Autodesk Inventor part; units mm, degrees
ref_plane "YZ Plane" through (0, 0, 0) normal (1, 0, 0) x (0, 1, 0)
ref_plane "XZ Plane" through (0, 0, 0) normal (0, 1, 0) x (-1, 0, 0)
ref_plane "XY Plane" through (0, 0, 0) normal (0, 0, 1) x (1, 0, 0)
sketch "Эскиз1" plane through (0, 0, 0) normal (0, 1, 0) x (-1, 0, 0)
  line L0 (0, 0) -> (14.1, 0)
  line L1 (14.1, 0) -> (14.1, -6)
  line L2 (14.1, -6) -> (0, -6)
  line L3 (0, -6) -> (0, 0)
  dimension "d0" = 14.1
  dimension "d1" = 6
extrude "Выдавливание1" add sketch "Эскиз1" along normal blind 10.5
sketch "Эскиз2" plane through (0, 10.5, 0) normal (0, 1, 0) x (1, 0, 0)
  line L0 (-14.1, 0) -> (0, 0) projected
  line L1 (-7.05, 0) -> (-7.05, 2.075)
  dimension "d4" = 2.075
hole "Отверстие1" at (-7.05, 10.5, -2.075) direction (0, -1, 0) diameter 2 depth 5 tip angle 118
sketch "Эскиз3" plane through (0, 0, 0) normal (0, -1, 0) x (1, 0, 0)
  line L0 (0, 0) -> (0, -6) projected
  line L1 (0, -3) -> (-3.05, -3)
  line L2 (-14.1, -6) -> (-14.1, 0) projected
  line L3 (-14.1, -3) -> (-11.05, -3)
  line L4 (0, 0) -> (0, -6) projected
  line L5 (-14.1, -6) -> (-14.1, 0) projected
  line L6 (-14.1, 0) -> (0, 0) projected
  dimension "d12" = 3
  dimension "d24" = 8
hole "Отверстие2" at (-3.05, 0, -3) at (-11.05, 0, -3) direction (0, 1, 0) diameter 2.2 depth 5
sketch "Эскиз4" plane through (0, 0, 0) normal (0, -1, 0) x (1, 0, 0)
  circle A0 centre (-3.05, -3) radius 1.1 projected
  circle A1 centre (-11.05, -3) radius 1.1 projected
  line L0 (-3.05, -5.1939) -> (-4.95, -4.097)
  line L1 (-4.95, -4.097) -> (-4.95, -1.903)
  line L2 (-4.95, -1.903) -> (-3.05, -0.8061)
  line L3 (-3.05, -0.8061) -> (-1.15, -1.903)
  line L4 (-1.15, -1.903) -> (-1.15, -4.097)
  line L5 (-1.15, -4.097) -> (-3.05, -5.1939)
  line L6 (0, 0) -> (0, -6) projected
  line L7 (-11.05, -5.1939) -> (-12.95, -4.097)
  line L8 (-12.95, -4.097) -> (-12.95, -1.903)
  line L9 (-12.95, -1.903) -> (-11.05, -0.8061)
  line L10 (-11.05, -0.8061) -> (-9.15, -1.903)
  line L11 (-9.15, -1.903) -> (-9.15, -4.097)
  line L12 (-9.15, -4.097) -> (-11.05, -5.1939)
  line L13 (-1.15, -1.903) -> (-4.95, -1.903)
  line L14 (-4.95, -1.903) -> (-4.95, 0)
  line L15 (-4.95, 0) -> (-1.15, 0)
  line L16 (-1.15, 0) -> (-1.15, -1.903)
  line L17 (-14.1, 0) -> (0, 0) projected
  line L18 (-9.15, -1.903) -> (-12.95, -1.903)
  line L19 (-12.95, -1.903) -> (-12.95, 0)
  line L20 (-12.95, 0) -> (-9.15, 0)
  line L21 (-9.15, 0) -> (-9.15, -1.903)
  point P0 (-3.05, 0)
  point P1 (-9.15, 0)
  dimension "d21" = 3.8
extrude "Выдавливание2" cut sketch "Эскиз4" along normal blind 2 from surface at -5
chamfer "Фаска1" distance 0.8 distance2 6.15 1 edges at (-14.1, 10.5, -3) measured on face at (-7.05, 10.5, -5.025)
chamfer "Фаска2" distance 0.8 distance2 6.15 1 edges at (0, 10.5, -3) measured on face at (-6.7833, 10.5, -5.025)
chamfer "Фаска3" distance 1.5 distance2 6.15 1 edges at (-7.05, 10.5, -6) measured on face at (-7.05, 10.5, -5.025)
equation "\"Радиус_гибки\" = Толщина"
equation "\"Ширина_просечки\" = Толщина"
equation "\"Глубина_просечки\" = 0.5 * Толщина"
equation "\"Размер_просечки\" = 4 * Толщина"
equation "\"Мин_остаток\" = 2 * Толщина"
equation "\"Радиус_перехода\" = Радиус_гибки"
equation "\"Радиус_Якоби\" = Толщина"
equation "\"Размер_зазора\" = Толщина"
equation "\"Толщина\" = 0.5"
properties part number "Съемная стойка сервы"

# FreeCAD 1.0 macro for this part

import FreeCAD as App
import Part
import Sketcher

V = App.Vector


def edges_at(feature, points):
    """Names of the edges that pass closest to the given points."""
    edges = feature.Shape.Edges
    near = lambda p: min(range(len(edges)), key=lambda i: edges[i].distToShape(Part.Vertex(*p))[0])
    return sorted({f"Edge{near(p) + 1}" for p in points})


def add_polygon(sketch, points):
    """Adds a closed chain of lines whose ends are joined by coincident constraints."""
    first, n = sketch.GeometryCount, len(points)
    for a, b in zip(points, points[1:] + points[:1]):
        sketch.addGeometry(Part.LineSegment(App.Vector(*a, 0), App.Vector(*b, 0)), False)
    for i in range(n):
        sketch.addConstraint(Sketcher.Constraint("Coincident", first + i, 2, first + (i + 1) % n, 1))

doc = App.newDocument("Part")
body = doc.addObject("PartDesign::Body", "Body")

sketch1 = doc.addObject("Sketcher::SketchObject", "Sketch")
body.addObject(sketch1)
sketch1.AttachmentSupport = (doc.XZ_Plane, [""])
sketch1.MapMode = "FlatFace"
add_polygon(sketch1, [(-14, 0), (0, 0), (0, -6), (-14, -6)])
sketch1.addConstraint([
    Sketcher.Constraint("Horizontal", 0),
    Sketcher.Constraint("Vertical", 1),
    Sketcher.Constraint("Horizontal", 2),
    Sketcher.Constraint("Vertical", 3),
    Sketcher.Constraint("Coincident", 0, 2, -1, 1),
    Sketcher.Constraint("DistanceY", 1, 2, 1, 1, 6.0),
    Sketcher.Constraint("DistanceX", 0, 1, 0, 2, 14.1),
])
pad1 = doc.addObject("PartDesign::Pad", "Pad")
body.addObject(pad1)
pad1.Profile = sketch1
pad1.Length = 10.5
pad1.Reversed = True

sketch2 = doc.addObject("Sketcher::SketchObject", "Sketch001")
body.addObject(sketch2)
sketch2.AttachmentSupport = (doc.XZ_Plane, [""])
sketch2.MapMode = "FlatFace"
sketch2.AttachmentOffset = App.Placement(V(0, 0, -10.5), App.Rotation())
sketch2.addGeometry(Part.Circle(V(-7, -2.1, 0), V(0, 0, 1), 1), False)
sketch2.addConstraint([
    Sketcher.Constraint("Diameter", 0, 2.0),
    Sketcher.Constraint("DistanceX", 0, 3, -1, 1, 7.05),
    Sketcher.Constraint("DistanceY", 0, 3, -1, 1, 2.075),
])
doc.recompute()
hole = doc.addObject("PartDesign::Hole", "Hole")
body.addObject(hole)
hole.Profile = sketch2
hole.ThreadType = "None"
hole.Diameter = 2
hole.DepthType = "Dimension"
hole.Depth = 5
hole.DrillPoint = "Angled"
hole.DrillPointAngle = 118
hole.Reversed = True

sketch3 = doc.addObject("Sketcher::SketchObject", "Sketch002")
body.addObject(sketch3)
sketch3.AttachmentSupport = (doc.XZ_Plane, [""])
sketch3.MapMode = "FlatFace"
sketch3.addGeometry([
    Part.Circle(V(-3, -3, 0), V(0, 0, 1), 1.1),
    Part.Circle(V(-11.1, -3, 0), V(0, 0, 1), 1.1),
], False)
sketch3.addConstraint([
    Sketcher.Constraint("Equal", 0, 1),
    Sketcher.Constraint("Horizontal", 0, 3, 1, 3),
    Sketcher.Constraint("Diameter", 0, 2.2),
    Sketcher.Constraint("DistanceY", 0, 3, -1, 1, 3.0),
    Sketcher.Constraint("DistanceX", 1, 3, 0, 3, 8.0),
    Sketcher.Constraint("DistanceX", 0, 3, -1, 1, 3.05),
])
doc.recompute()
hole2 = doc.addObject("PartDesign::Hole", "Hole001")
body.addObject(hole2)
hole2.Profile = sketch3
hole2.ThreadType = "None"
hole2.Diameter = 2.2
hole2.DepthType = "Dimension"
hole2.Depth = 5
hole2.DrillPoint = "Flat"

sketch4 = doc.addObject("Sketcher::SketchObject", "Sketch003")
body.addObject(sketch4)
sketch4.AttachmentSupport = (doc.XZ_Plane, [""])
sketch4.MapMode = "FlatFace"
sketch4.AttachmentOffset = App.Placement(V(0, 0, -5), App.Rotation())
add_polygon(sketch4, [(-1.1, -4.1), (-1.1, 0), (-5, 0), (-5, -4.1), (-3, -5.2)])
add_polygon(sketch4, [(-9.2, 0), (-12.9, 0), (-12.9, -4.1), (-11.1, -5.2), (-9.2, -4.1)])
sketch4.addConstraint([
    Sketcher.Constraint("Vertical", 0),
    Sketcher.Constraint("Horizontal", 1),
    Sketcher.Constraint("Vertical", 2),
    Sketcher.Constraint("Horizontal", 5),
    Sketcher.Constraint("Vertical", 6),
    Sketcher.Constraint("Vertical", 9),
    Sketcher.Constraint("PointOnObject", 0, 2, -1),
    Sketcher.Constraint("PointOnObject", 5, 2, -1),
    Sketcher.Constraint("Parallel", 3, 7),
    Sketcher.Constraint("Parallel", 4, 8),
    Sketcher.Constraint("Horizontal", 2, 2, 4, 2),
    Sketcher.Constraint("Horizontal", 4, 2, 6, 2),
    Sketcher.Constraint("Horizontal", 3, 2, 7, 2),
    Sketcher.Constraint("Horizontal", 6, 2, 8, 2),
    Sketcher.Constraint("Equal", 3, 4),
    Sketcher.Constraint("DistanceX", 1, 2, 1, 1, 3.8),
    Sketcher.Constraint("DistanceX", 5, 2, 1, 2, 8.0),
    Sketcher.Constraint("DistanceY", 0, 1, 0, 2, 4.097),
    Sketcher.Constraint("DistanceX", 0, 2, -1, 1, 1.15),
    Sketcher.Constraint("Distance", 3, 2.194),
])
pocket1 = doc.addObject("PartDesign::Pocket", "Pocket")
body.addObject(pocket1)
pocket1.Profile = sketch4
pocket1.Length = 2
pocket1.Reversed = True
doc.recompute()

chamfer = doc.addObject("PartDesign::Chamfer", "Chamfer")
body.addObject(chamfer)
chamfer.Base = (pocket1, edges_at(pocket1, [(-14.1, 10.5, -3)]))
chamfer.ChamferType = "Two distances"
chamfer.Size = 0.8
chamfer.Size2 = 6.15
chamfer.FlipDirection = True
doc.recompute()

chamfer2 = doc.addObject("PartDesign::Chamfer", "Chamfer001")
body.addObject(chamfer2)
chamfer2.Base = (chamfer, edges_at(chamfer, [(0, 10.5, -3)]))
chamfer2.ChamferType = "Two distances"
chamfer2.Size = 0.8
chamfer2.Size2 = 6.15
doc.recompute()

chamfer3 = doc.addObject("PartDesign::Chamfer", "Chamfer002")
body.addObject(chamfer3)
chamfer3.Base = (chamfer2, edges_at(chamfer2, [(-7.05, 10.5, -6)]))
chamfer3.ChamferType = "Two distances"
chamfer3.Size = 1.5
chamfer3.Size2 = 6.15

doc.recompute()
